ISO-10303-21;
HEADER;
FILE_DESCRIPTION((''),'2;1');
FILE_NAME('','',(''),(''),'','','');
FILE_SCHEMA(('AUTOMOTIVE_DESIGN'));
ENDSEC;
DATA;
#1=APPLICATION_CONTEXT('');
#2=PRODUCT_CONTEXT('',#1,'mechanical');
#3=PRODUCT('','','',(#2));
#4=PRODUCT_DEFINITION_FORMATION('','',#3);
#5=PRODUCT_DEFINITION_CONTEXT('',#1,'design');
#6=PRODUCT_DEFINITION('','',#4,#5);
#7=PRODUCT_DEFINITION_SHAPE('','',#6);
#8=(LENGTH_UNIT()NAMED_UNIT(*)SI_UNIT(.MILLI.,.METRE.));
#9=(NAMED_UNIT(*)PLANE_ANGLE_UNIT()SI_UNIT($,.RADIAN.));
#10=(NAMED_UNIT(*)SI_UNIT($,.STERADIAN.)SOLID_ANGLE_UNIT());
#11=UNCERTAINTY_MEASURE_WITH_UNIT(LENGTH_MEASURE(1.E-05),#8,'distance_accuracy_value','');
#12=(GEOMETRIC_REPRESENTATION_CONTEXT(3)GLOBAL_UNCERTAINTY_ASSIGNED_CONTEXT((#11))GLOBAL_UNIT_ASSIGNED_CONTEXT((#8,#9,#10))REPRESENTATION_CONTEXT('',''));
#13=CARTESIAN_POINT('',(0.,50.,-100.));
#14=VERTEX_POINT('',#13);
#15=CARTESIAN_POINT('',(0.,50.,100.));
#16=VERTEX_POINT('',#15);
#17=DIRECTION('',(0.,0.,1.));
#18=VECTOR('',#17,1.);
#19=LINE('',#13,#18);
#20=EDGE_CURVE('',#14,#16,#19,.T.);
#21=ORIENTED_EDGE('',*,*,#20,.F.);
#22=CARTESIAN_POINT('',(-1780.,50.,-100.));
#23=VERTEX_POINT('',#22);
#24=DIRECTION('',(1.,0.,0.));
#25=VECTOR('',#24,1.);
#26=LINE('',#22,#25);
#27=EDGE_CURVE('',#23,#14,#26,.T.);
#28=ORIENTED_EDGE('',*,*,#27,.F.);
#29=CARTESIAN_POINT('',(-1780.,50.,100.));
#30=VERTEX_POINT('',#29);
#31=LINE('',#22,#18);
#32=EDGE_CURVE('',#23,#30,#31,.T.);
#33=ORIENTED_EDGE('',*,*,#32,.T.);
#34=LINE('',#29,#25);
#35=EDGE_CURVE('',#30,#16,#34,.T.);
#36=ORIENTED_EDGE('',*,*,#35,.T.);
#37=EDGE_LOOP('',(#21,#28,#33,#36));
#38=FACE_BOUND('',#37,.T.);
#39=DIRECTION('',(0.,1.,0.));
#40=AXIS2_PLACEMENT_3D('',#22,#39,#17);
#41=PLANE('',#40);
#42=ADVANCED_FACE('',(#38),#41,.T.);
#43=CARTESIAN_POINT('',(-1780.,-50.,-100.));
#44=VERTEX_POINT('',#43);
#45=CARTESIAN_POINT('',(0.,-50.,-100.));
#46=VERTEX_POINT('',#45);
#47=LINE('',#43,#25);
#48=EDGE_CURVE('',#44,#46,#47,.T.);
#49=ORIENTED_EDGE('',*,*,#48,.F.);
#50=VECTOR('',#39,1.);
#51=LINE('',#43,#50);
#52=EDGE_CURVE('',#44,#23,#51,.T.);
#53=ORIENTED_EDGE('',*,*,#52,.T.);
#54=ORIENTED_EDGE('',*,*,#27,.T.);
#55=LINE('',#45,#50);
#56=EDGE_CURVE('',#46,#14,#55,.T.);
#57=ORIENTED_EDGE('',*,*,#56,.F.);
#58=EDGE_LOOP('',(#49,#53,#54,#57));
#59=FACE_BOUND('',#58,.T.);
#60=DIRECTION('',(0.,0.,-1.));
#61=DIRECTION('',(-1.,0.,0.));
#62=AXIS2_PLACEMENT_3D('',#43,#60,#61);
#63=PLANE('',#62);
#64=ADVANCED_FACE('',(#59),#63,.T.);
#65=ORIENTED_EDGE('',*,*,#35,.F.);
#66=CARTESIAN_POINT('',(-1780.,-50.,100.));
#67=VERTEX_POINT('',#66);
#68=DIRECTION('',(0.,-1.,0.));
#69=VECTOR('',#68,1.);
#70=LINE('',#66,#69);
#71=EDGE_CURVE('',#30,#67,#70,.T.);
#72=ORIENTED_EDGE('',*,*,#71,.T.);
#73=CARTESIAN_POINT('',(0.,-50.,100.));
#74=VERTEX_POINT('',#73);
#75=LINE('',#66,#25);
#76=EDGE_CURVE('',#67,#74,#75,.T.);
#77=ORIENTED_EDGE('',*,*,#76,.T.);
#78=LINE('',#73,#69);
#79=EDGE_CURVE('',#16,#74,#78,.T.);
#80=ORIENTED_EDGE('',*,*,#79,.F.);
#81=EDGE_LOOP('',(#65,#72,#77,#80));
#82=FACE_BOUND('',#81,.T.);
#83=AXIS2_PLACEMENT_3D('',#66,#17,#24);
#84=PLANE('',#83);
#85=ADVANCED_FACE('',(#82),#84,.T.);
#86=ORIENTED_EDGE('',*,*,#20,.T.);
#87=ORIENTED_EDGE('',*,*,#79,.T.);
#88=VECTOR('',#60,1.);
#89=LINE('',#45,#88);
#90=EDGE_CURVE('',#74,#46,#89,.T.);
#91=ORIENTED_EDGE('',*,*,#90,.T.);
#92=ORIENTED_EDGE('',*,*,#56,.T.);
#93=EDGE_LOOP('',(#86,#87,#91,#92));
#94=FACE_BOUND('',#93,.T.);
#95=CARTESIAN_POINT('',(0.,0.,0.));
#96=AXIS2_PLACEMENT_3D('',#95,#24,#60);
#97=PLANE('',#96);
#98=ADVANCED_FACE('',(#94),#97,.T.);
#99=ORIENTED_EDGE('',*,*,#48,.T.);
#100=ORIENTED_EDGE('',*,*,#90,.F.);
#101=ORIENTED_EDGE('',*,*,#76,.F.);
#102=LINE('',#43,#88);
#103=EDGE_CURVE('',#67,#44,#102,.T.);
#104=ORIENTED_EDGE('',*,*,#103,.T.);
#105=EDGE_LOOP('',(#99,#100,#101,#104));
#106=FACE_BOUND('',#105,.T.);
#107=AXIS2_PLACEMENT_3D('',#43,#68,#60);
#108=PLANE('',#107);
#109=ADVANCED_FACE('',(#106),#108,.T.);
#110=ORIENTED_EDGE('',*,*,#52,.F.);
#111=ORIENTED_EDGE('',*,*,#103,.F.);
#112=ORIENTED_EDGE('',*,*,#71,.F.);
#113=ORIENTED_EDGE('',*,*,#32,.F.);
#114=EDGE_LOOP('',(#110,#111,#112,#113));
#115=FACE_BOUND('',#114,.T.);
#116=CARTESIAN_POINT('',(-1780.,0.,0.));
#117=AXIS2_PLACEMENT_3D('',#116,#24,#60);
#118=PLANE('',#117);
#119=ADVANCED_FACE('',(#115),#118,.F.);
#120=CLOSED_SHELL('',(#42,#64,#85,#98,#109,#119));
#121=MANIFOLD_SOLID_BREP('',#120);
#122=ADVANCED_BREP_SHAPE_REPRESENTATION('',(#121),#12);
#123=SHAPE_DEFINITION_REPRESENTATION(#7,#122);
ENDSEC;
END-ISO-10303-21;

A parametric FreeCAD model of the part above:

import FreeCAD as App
import Part
import Sketcher
from FreeCAD import Vector


def add_polygon(sketch, points):
    """Adds a closed chain of lines whose ends are joined by coincident constraints."""
    first, n = sketch.GeometryCount, len(points)
    for a, b in zip(points, points[1:] + points[:1]):
        sketch.addGeometry(Part.LineSegment(App.Vector(*a, 0), App.Vector(*b, 0)), False)
    for i in range(n):
        sketch.addConstraint(Sketcher.Constraint("Coincident", first + i, 2, first + (i + 1) % n, 1))

doc = App.newDocument("Part")
body = doc.addObject("PartDesign::Body", "Body")

sketch1 = body.newObject("Sketcher::SketchObject", "Sketch")
sketch1.AttachmentSupport = (doc.getObject("YZ_Plane"), [""])
sketch1.MapMode = "FlatFace"
add_polygon(sketch1, [(50, 100), (-50, 100), (-50, -100), (50, -100)])
sketch1.addConstraint([
    Sketcher.Constraint("Horizontal", 0),
    Sketcher.Constraint("Vertical", 1),
    Sketcher.Constraint("Horizontal", 2),
    Sketcher.Constraint("Vertical", 3),
    Sketcher.Constraint("Symmetric", 0, 2, 2, 2, -1, 1),
    Sketcher.Constraint("DistanceX", 0, 2, 0, 1, 100.0),
    Sketcher.Constraint("DistanceY", 1, 2, 1, 1, 200.0),
])
pad1 = body.newObject("PartDesign::Pad", "Pad")
pad1.Profile = sketch1
pad1.Length = 1780
pad1.Reversed = True

doc.recompute()
